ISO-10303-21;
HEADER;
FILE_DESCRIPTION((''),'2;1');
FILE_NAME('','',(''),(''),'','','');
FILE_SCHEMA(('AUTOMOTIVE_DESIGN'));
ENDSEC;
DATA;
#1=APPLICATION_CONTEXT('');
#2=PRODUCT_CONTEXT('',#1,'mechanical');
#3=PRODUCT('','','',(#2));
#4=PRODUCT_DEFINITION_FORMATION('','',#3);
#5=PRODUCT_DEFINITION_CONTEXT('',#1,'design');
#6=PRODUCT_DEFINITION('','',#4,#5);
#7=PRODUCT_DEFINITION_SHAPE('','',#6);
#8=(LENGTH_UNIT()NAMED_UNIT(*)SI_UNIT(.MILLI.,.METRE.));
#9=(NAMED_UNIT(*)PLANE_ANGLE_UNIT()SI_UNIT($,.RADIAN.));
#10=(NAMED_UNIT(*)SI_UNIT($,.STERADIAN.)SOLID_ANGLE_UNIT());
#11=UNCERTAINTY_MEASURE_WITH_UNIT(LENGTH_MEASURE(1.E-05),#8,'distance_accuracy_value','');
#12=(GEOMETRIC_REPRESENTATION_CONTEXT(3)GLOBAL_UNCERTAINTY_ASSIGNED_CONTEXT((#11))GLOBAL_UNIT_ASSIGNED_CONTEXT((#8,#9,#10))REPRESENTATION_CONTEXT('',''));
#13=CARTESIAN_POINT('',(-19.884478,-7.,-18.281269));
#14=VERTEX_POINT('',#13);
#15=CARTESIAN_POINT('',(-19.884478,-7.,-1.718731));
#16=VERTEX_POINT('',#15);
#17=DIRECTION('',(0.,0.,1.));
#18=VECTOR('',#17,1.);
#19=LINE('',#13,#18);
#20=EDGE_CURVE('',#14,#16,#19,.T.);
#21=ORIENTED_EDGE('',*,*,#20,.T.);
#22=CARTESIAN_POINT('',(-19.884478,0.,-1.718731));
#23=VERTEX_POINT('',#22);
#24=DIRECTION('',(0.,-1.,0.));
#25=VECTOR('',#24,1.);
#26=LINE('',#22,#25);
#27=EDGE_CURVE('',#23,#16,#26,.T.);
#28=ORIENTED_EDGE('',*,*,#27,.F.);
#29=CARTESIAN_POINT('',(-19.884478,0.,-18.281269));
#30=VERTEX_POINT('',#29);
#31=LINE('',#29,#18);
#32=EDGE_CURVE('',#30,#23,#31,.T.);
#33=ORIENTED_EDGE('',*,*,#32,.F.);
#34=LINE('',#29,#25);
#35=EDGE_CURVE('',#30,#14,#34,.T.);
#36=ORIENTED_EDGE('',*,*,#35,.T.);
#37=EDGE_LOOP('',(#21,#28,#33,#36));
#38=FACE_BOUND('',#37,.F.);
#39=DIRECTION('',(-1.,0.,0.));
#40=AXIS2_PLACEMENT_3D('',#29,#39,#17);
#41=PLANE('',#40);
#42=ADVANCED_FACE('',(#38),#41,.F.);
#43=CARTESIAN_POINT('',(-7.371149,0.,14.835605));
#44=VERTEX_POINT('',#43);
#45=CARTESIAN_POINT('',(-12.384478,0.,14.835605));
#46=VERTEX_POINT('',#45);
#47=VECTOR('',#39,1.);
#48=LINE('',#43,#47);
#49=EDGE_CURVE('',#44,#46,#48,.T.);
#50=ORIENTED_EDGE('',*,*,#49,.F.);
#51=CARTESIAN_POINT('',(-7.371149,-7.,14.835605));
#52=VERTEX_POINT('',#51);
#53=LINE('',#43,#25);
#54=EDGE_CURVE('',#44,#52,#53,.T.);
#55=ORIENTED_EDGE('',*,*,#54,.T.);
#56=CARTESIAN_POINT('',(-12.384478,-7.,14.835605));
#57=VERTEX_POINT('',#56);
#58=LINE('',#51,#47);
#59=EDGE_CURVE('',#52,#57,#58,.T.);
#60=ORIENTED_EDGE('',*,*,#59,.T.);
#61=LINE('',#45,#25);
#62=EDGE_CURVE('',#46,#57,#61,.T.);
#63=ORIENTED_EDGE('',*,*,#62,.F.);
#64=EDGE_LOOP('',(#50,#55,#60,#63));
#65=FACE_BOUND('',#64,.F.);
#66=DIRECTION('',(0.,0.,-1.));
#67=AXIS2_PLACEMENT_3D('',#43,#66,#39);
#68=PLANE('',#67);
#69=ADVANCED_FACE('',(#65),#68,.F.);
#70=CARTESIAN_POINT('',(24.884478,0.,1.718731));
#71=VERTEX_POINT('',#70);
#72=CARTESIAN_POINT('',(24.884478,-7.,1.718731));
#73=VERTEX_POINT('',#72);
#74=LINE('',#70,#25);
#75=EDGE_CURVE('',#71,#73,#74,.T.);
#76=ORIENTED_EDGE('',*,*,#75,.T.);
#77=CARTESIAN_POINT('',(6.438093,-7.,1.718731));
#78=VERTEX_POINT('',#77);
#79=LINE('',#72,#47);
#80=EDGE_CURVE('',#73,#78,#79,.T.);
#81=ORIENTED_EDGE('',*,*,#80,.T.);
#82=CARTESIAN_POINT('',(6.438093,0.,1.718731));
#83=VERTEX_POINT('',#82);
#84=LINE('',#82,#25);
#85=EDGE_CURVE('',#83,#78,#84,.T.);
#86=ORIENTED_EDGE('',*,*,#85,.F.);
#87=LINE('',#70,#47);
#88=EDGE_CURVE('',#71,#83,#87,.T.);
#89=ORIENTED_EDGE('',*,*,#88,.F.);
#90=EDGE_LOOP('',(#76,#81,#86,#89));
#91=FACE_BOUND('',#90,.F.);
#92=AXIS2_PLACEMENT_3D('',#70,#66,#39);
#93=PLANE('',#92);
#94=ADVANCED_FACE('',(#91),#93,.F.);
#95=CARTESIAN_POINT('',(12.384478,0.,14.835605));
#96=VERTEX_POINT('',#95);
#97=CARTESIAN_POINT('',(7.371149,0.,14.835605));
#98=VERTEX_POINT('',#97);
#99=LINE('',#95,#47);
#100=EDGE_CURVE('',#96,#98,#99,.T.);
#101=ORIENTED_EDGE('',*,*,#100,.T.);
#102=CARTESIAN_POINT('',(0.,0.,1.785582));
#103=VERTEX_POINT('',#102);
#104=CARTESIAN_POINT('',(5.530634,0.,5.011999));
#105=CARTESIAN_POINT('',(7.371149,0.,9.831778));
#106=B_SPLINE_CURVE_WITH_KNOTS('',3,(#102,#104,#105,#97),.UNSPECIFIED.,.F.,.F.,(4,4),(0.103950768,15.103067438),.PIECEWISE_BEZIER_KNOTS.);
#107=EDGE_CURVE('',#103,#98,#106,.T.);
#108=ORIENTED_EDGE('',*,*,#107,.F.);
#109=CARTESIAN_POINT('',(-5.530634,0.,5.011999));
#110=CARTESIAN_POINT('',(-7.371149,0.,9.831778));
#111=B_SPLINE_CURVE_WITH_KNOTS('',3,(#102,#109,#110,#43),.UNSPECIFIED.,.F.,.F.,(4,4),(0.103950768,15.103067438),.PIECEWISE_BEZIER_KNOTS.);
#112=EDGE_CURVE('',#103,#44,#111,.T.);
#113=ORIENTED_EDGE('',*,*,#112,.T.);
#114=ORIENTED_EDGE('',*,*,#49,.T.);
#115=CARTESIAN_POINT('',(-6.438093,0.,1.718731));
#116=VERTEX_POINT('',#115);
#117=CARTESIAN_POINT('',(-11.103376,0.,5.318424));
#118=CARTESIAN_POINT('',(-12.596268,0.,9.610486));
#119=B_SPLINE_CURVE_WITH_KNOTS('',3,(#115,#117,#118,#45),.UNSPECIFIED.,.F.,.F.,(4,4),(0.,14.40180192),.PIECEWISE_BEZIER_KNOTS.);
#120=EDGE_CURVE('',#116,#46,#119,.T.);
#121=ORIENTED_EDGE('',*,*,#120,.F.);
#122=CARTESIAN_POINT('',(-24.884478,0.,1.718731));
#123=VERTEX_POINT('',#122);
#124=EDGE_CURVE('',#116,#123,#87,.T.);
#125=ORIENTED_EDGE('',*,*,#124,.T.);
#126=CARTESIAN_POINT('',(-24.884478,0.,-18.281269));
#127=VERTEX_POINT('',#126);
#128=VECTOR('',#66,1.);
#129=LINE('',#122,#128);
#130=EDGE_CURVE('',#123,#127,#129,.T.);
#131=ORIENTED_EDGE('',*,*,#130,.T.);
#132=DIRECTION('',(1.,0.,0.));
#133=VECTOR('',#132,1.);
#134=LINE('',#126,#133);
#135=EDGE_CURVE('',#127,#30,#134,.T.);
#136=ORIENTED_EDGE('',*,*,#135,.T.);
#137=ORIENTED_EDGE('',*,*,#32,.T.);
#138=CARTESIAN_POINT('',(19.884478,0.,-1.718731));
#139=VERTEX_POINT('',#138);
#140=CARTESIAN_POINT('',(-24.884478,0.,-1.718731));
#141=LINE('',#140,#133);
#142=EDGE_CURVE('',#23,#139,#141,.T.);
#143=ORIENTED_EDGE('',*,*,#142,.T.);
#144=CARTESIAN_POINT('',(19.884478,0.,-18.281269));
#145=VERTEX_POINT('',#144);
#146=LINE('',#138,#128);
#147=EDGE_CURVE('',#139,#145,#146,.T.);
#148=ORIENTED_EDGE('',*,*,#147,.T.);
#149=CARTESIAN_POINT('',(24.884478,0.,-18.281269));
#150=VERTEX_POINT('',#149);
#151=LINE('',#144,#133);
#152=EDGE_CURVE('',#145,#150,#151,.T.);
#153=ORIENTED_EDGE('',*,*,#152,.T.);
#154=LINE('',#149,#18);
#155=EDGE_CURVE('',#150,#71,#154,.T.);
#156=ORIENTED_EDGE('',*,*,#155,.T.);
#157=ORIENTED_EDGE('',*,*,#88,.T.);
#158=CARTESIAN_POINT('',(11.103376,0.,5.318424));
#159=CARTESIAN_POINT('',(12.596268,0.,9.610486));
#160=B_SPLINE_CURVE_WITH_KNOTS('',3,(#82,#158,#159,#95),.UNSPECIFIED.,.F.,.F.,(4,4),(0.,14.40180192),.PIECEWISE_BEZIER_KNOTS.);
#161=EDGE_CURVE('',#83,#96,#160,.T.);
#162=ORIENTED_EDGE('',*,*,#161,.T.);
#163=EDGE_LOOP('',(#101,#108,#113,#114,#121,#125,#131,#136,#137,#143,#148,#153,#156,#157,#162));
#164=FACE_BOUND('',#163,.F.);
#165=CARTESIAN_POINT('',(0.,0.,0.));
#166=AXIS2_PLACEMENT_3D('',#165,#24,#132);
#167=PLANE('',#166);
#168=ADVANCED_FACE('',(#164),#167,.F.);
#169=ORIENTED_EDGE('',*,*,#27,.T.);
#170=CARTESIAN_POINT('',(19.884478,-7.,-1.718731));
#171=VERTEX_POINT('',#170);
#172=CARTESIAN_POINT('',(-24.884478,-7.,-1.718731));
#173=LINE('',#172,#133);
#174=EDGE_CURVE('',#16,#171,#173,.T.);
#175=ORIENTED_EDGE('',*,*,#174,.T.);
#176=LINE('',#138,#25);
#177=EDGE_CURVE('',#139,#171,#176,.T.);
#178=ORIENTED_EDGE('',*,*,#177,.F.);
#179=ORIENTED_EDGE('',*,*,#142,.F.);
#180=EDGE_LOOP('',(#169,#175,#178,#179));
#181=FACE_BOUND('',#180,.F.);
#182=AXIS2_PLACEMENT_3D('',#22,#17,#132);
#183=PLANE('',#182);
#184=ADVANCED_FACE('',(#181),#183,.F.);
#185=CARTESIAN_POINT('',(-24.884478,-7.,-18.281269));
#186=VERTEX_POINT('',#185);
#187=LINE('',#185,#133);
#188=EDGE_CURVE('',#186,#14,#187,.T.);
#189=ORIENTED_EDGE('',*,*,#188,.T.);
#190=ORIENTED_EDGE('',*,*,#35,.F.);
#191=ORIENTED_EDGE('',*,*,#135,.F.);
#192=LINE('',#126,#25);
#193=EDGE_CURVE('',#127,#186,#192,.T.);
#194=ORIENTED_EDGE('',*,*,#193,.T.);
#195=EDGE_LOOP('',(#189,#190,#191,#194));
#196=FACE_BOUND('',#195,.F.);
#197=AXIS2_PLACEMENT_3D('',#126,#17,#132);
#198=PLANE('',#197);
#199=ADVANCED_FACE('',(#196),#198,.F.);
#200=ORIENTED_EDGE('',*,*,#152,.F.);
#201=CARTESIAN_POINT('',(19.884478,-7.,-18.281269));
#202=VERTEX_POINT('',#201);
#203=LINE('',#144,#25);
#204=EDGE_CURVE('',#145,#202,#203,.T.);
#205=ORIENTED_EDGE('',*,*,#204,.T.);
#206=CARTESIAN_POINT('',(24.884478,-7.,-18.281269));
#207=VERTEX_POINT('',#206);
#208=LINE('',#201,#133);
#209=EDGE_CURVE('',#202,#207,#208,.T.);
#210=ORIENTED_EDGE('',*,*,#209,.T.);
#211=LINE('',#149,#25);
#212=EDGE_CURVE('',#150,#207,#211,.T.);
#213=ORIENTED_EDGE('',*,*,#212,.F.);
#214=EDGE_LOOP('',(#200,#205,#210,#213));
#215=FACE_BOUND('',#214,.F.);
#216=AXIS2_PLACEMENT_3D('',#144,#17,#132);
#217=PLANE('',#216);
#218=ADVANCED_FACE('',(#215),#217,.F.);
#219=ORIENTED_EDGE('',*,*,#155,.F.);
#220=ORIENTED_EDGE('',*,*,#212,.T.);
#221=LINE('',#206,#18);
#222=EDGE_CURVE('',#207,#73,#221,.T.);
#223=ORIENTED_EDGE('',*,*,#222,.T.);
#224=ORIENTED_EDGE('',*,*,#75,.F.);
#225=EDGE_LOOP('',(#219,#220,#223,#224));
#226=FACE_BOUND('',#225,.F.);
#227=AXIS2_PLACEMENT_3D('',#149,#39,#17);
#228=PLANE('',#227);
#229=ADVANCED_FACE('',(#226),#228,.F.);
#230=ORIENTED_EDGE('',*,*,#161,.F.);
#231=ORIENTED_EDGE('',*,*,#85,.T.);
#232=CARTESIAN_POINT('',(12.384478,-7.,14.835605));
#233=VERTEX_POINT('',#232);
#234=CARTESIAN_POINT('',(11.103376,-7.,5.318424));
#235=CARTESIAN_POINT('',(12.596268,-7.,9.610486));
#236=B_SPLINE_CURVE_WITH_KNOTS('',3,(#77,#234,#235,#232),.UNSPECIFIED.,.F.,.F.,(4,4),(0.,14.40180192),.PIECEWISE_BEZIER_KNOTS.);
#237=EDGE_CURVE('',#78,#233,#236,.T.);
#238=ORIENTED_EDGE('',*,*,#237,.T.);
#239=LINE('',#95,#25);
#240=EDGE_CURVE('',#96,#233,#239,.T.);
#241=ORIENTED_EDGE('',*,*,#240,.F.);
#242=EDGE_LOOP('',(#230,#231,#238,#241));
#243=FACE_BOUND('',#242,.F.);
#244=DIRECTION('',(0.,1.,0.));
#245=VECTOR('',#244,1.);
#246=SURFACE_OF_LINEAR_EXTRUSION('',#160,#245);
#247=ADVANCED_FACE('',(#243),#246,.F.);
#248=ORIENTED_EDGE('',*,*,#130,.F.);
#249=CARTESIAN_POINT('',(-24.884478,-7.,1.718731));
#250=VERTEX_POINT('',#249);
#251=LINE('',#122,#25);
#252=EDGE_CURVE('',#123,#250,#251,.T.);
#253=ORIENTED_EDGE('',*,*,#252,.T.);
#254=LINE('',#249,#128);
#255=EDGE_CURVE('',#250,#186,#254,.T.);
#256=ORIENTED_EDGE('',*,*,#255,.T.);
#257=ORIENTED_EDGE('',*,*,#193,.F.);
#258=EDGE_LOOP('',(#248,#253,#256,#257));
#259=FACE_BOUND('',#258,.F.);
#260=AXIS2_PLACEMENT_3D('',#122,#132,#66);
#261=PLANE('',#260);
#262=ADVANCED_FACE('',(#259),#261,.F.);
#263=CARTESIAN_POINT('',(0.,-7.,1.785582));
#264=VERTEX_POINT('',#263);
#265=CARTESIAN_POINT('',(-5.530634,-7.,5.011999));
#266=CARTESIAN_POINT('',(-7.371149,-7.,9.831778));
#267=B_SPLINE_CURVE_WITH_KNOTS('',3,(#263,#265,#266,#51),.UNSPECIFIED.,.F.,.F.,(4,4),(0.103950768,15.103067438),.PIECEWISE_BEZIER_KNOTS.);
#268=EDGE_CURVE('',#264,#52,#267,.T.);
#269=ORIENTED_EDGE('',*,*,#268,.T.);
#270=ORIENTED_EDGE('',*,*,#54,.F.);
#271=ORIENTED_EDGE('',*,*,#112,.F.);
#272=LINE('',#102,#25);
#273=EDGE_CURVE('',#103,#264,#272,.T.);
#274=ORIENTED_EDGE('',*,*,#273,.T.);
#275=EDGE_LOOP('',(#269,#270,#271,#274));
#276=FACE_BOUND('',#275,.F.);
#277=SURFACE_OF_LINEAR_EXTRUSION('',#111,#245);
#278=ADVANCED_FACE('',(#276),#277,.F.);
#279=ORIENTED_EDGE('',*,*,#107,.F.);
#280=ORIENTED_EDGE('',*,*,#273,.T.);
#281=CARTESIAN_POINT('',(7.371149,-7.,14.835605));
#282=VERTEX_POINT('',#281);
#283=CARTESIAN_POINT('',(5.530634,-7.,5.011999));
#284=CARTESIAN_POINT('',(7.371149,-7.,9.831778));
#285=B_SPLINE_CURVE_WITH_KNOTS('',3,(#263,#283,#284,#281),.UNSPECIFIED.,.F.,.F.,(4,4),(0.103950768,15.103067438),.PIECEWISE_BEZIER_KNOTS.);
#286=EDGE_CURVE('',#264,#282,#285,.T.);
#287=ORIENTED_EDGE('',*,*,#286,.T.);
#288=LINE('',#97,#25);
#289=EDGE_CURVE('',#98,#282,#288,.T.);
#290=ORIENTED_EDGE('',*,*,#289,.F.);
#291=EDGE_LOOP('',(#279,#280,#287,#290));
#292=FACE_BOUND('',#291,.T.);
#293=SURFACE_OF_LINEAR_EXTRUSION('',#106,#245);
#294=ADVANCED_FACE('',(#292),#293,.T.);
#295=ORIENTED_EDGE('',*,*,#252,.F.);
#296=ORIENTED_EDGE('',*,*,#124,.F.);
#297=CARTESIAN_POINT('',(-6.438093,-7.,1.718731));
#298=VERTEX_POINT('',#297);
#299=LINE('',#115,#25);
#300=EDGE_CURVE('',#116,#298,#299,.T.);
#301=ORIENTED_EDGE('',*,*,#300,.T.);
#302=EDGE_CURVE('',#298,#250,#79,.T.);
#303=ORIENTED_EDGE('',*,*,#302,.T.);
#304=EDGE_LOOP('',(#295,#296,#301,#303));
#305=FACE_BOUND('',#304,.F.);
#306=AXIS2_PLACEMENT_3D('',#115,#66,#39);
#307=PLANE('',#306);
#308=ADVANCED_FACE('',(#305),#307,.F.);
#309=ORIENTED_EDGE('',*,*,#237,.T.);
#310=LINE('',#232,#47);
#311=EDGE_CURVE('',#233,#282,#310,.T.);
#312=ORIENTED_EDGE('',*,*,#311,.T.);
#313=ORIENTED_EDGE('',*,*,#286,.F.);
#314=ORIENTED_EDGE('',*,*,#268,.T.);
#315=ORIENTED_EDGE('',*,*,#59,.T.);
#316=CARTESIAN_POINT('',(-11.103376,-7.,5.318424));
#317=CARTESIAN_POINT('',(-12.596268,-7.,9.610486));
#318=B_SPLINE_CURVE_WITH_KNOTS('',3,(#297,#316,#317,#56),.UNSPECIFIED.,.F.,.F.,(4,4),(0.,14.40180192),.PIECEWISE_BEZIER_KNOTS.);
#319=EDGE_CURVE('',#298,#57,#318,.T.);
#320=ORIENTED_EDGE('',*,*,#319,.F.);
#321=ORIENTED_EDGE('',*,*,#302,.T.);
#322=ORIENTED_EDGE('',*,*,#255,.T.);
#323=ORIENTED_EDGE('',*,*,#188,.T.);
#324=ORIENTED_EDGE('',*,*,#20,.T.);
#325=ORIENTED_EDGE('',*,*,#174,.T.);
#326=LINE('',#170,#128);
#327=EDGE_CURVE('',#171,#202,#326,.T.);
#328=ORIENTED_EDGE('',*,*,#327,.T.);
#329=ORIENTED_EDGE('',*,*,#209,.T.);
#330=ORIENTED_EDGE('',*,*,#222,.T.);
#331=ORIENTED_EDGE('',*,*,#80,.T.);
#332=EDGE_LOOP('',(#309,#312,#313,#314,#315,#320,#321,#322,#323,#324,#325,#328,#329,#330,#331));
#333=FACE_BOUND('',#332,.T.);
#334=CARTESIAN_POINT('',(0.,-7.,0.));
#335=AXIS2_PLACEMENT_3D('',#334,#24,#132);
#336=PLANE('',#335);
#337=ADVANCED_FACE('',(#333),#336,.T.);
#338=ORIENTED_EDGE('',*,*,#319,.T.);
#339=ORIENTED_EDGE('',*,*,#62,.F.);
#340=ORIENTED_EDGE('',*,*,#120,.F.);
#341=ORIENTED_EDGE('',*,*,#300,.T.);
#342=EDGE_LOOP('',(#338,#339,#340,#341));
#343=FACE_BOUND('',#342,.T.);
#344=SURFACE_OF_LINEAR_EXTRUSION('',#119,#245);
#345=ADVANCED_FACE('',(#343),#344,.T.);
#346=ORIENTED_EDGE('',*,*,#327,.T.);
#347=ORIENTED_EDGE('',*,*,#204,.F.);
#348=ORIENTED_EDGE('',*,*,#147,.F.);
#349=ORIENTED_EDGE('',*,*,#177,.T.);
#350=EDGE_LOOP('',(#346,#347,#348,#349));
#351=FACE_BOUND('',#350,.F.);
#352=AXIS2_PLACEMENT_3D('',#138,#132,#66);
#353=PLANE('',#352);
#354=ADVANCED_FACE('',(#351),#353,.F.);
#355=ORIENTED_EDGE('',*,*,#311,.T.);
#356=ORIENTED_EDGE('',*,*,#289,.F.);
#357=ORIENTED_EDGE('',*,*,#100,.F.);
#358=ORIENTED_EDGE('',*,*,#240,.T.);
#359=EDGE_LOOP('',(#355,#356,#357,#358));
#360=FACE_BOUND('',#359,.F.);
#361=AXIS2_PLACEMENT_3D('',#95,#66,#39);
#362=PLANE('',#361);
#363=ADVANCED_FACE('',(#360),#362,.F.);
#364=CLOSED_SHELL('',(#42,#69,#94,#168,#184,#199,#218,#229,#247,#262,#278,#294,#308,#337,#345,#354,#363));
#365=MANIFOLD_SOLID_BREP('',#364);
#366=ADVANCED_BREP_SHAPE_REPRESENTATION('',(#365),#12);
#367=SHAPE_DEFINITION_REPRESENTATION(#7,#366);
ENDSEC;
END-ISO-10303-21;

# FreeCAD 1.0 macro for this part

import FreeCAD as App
import Part
import Sketcher

doc = App.newDocument("Part")
params = doc.addObject("Spreadsheet::Sheet", "Params")
for row, (alias, value) in enumerate([
    ("sketch1_width", "5 mm"),
    ("sketch1_height", "20 mm"),
    ("pad1_length", "7 mm"),
], start=1):
    params.set(f"A{row}", alias)
    params.set(f"B{row}", "=" + value)
    params.setAlias(f"B{row}", alias)

body = doc.addObject("PartDesign::Body", "Body")

# Sketch on XZ plane
sketch1 = body.newObject("Sketcher::SketchObject", "Sketch")
sketch1.AttachmentSupport = (doc.getObject("XZ_Plane"), [""])
sketch1.MapMode = "FlatFace"
sketch1.addGeometry(Part.BSplineCurve([App.Vector(0, 1.785582, 0), App.Vector(5.530634, 5.011999, 0), App.Vector(7.371149, 9.831778, 0), App.Vector(7.371149, 14.835605, 0)], [4, 4], [0.103950768, 15.103067438], False, 3, [1, 1, 1, 1], False), False)
sketch1.addGeometry(Part.BSplineCurve([App.Vector(0, 1.785582, 0), App.Vector(-5.530634, 5.011999, 0), App.Vector(-7.371149, 9.831778, 0), App.Vector(-7.371149, 14.835605, 0)], [4, 4], [0.103950768, 15.103067438], False, 3, [1, 1, 1, 1], False), False)
sketch1.addGeometry(Part.LineSegment(App.Vector(-7.371149, 14.835605, 0), App.Vector(-12.384478, 14.835605, 0)), False)
sketch1.addGeometry(Part.BSplineCurve([App.Vector(-6.438093, 1.718731, 0), App.Vector(-11.103376, 5.318424, 0), App.Vector(-12.596268, 9.610486, 0), App.Vector(-12.384478, 14.835605, 0)], [4, 4], [0, 14.40180192], False, 3, [1, 1, 1, 1], False), False)
sketch1.addGeometry(Part.LineSegment(App.Vector(-6.438093, 1.718731, 0), App.Vector(-24.884478, 1.718731, 0)), False)
sketch1.addGeometry(Part.LineSegment(App.Vector(-24.884478, 1.718731, 0), App.Vector(-24.884478, -18.281269, 0)), False)
sketch1.addGeometry(Part.LineSegment(App.Vector(-24.884478, -18.281269, 0), App.Vector(-19.884478, -18.281269, 0)), False)
sketch1.addGeometry(Part.LineSegment(App.Vector(-19.884478, -18.281269, 0), App.Vector(-19.884478, -1.718731, 0)), False)
sketch1.addGeometry(Part.LineSegment(App.Vector(-19.884478, -1.718731, 0), App.Vector(19.884478, -1.718731, 0)), False)
sketch1.addGeometry(Part.LineSegment(App.Vector(19.884478, -1.718731, 0), App.Vector(19.884478, -18.281269, 0)), False)
sketch1.addGeometry(Part.LineSegment(App.Vector(19.884478, -18.281269, 0), App.Vector(24.884478, -18.281269, 0)), False)
sketch1.addGeometry(Part.LineSegment(App.Vector(24.884478, -18.281269, 0), App.Vector(24.884478, 1.718731, 0)), False)
sketch1.addGeometry(Part.LineSegment(App.Vector(24.884478, 1.718731, 0), App.Vector(6.438093, 1.718731, 0)), False)
sketch1.addGeometry(Part.BSplineCurve([App.Vector(6.438093, 1.718731, 0), App.Vector(11.103376, 5.318424, 0), App.Vector(12.596268, 9.610486, 0), App.Vector(12.384478, 14.835605, 0)], [4, 4], [0, 14.40180192], False, 3, [1, 1, 1, 1], False), False)
sketch1.addGeometry(Part.LineSegment(App.Vector(12.384478, 14.835605, 0), App.Vector(7.371149, 14.835605, 0)), False)
sketch1.addConstraint(Sketcher.Constraint("Block", 0))
sketch1.addConstraint(Sketcher.Constraint("Block", 1))
sketch1.addConstraint(Sketcher.Constraint("Block", 3))
sketch1.addConstraint(Sketcher.Constraint("Block", 13))
sketch1.addConstraint(Sketcher.Constraint("Coincident", 1, 2, 2, 1))
sketch1.addConstraint(Sketcher.Constraint("Coincident", 2, 2, 3, 2))
sketch1.addConstraint(Sketcher.Constraint("Coincident", 3, 1, 4, 1))
sketch1.addConstraint(Sketcher.Constraint("Coincident", 4, 2, 5, 1))
sketch1.addConstraint(Sketcher.Constraint("Coincident", 5, 2, 6, 1))
sketch1.addConstraint(Sketcher.Constraint("Coincident", 6, 2, 7, 1))
sketch1.addConstraint(Sketcher.Constraint("Coincident", 7, 2, 8, 1))
sketch1.addConstraint(Sketcher.Constraint("Coincident", 8, 2, 9, 1))
sketch1.addConstraint(Sketcher.Constraint("Coincident", 9, 2, 10, 1))
sketch1.addConstraint(Sketcher.Constraint("Coincident", 10, 2, 11, 1))
sketch1.addConstraint(Sketcher.Constraint("Coincident", 11, 2, 12, 1))
sketch1.addConstraint(Sketcher.Constraint("Coincident", 12, 2, 13, 1))
sketch1.addConstraint(Sketcher.Constraint("Coincident", 13, 2, 14, 1))
sketch1.addConstraint(Sketcher.Constraint("Coincident", 14, 2, 0, 2))
sketch1.addConstraint(Sketcher.Constraint("Horizontal", 4))
sketch1.addConstraint(Sketcher.Constraint("Vertical", 5))
sketch1.addConstraint(Sketcher.Constraint("Horizontal", 6))
sketch1.addConstraint(Sketcher.Constraint("Vertical", 7))
sketch1.addConstraint(Sketcher.Constraint("Horizontal", 8))
sketch1.addConstraint(Sketcher.Constraint("Vertical", 9))
sketch1.addConstraint(Sketcher.Constraint("Horizontal", 10))
sketch1.addConstraint(Sketcher.Constraint("Vertical", 11))
sketch1.addConstraint(Sketcher.Constraint("Horizontal", 12))
sketch1.addConstraint(Sketcher.Constraint("Symmetric", 6, 2, 9, 2, -2))
sketch1.addConstraint(Sketcher.Constraint("Equal", 6, 10))
sketch1.addConstraint(Sketcher.Constraint("DistanceX", 6, 1, 6, 2, 5.0))
sketch1.addConstraint(Sketcher.Constraint("DistanceY", 5, 2, 5, 1, 20.0))
sketch1.addConstraint(Sketcher.Constraint("DistanceX", 4, 2, 2, 2, 12.5))
sketch1.addConstraint(Sketcher.Constraint("DistanceY", 7, 1, 7, 2, 16.562539))
sketch1.setExpression("Constraints[29]", "Params.sketch1_width")
sketch1.setExpression("Constraints[30]", "Params.sketch1_height")
pad1 = body.newObject("PartDesign::Pad", "Pad")
pad1.Profile = sketch1
pad1.setExpression("Length", "Params.pad1_length")

doc.recompute()
